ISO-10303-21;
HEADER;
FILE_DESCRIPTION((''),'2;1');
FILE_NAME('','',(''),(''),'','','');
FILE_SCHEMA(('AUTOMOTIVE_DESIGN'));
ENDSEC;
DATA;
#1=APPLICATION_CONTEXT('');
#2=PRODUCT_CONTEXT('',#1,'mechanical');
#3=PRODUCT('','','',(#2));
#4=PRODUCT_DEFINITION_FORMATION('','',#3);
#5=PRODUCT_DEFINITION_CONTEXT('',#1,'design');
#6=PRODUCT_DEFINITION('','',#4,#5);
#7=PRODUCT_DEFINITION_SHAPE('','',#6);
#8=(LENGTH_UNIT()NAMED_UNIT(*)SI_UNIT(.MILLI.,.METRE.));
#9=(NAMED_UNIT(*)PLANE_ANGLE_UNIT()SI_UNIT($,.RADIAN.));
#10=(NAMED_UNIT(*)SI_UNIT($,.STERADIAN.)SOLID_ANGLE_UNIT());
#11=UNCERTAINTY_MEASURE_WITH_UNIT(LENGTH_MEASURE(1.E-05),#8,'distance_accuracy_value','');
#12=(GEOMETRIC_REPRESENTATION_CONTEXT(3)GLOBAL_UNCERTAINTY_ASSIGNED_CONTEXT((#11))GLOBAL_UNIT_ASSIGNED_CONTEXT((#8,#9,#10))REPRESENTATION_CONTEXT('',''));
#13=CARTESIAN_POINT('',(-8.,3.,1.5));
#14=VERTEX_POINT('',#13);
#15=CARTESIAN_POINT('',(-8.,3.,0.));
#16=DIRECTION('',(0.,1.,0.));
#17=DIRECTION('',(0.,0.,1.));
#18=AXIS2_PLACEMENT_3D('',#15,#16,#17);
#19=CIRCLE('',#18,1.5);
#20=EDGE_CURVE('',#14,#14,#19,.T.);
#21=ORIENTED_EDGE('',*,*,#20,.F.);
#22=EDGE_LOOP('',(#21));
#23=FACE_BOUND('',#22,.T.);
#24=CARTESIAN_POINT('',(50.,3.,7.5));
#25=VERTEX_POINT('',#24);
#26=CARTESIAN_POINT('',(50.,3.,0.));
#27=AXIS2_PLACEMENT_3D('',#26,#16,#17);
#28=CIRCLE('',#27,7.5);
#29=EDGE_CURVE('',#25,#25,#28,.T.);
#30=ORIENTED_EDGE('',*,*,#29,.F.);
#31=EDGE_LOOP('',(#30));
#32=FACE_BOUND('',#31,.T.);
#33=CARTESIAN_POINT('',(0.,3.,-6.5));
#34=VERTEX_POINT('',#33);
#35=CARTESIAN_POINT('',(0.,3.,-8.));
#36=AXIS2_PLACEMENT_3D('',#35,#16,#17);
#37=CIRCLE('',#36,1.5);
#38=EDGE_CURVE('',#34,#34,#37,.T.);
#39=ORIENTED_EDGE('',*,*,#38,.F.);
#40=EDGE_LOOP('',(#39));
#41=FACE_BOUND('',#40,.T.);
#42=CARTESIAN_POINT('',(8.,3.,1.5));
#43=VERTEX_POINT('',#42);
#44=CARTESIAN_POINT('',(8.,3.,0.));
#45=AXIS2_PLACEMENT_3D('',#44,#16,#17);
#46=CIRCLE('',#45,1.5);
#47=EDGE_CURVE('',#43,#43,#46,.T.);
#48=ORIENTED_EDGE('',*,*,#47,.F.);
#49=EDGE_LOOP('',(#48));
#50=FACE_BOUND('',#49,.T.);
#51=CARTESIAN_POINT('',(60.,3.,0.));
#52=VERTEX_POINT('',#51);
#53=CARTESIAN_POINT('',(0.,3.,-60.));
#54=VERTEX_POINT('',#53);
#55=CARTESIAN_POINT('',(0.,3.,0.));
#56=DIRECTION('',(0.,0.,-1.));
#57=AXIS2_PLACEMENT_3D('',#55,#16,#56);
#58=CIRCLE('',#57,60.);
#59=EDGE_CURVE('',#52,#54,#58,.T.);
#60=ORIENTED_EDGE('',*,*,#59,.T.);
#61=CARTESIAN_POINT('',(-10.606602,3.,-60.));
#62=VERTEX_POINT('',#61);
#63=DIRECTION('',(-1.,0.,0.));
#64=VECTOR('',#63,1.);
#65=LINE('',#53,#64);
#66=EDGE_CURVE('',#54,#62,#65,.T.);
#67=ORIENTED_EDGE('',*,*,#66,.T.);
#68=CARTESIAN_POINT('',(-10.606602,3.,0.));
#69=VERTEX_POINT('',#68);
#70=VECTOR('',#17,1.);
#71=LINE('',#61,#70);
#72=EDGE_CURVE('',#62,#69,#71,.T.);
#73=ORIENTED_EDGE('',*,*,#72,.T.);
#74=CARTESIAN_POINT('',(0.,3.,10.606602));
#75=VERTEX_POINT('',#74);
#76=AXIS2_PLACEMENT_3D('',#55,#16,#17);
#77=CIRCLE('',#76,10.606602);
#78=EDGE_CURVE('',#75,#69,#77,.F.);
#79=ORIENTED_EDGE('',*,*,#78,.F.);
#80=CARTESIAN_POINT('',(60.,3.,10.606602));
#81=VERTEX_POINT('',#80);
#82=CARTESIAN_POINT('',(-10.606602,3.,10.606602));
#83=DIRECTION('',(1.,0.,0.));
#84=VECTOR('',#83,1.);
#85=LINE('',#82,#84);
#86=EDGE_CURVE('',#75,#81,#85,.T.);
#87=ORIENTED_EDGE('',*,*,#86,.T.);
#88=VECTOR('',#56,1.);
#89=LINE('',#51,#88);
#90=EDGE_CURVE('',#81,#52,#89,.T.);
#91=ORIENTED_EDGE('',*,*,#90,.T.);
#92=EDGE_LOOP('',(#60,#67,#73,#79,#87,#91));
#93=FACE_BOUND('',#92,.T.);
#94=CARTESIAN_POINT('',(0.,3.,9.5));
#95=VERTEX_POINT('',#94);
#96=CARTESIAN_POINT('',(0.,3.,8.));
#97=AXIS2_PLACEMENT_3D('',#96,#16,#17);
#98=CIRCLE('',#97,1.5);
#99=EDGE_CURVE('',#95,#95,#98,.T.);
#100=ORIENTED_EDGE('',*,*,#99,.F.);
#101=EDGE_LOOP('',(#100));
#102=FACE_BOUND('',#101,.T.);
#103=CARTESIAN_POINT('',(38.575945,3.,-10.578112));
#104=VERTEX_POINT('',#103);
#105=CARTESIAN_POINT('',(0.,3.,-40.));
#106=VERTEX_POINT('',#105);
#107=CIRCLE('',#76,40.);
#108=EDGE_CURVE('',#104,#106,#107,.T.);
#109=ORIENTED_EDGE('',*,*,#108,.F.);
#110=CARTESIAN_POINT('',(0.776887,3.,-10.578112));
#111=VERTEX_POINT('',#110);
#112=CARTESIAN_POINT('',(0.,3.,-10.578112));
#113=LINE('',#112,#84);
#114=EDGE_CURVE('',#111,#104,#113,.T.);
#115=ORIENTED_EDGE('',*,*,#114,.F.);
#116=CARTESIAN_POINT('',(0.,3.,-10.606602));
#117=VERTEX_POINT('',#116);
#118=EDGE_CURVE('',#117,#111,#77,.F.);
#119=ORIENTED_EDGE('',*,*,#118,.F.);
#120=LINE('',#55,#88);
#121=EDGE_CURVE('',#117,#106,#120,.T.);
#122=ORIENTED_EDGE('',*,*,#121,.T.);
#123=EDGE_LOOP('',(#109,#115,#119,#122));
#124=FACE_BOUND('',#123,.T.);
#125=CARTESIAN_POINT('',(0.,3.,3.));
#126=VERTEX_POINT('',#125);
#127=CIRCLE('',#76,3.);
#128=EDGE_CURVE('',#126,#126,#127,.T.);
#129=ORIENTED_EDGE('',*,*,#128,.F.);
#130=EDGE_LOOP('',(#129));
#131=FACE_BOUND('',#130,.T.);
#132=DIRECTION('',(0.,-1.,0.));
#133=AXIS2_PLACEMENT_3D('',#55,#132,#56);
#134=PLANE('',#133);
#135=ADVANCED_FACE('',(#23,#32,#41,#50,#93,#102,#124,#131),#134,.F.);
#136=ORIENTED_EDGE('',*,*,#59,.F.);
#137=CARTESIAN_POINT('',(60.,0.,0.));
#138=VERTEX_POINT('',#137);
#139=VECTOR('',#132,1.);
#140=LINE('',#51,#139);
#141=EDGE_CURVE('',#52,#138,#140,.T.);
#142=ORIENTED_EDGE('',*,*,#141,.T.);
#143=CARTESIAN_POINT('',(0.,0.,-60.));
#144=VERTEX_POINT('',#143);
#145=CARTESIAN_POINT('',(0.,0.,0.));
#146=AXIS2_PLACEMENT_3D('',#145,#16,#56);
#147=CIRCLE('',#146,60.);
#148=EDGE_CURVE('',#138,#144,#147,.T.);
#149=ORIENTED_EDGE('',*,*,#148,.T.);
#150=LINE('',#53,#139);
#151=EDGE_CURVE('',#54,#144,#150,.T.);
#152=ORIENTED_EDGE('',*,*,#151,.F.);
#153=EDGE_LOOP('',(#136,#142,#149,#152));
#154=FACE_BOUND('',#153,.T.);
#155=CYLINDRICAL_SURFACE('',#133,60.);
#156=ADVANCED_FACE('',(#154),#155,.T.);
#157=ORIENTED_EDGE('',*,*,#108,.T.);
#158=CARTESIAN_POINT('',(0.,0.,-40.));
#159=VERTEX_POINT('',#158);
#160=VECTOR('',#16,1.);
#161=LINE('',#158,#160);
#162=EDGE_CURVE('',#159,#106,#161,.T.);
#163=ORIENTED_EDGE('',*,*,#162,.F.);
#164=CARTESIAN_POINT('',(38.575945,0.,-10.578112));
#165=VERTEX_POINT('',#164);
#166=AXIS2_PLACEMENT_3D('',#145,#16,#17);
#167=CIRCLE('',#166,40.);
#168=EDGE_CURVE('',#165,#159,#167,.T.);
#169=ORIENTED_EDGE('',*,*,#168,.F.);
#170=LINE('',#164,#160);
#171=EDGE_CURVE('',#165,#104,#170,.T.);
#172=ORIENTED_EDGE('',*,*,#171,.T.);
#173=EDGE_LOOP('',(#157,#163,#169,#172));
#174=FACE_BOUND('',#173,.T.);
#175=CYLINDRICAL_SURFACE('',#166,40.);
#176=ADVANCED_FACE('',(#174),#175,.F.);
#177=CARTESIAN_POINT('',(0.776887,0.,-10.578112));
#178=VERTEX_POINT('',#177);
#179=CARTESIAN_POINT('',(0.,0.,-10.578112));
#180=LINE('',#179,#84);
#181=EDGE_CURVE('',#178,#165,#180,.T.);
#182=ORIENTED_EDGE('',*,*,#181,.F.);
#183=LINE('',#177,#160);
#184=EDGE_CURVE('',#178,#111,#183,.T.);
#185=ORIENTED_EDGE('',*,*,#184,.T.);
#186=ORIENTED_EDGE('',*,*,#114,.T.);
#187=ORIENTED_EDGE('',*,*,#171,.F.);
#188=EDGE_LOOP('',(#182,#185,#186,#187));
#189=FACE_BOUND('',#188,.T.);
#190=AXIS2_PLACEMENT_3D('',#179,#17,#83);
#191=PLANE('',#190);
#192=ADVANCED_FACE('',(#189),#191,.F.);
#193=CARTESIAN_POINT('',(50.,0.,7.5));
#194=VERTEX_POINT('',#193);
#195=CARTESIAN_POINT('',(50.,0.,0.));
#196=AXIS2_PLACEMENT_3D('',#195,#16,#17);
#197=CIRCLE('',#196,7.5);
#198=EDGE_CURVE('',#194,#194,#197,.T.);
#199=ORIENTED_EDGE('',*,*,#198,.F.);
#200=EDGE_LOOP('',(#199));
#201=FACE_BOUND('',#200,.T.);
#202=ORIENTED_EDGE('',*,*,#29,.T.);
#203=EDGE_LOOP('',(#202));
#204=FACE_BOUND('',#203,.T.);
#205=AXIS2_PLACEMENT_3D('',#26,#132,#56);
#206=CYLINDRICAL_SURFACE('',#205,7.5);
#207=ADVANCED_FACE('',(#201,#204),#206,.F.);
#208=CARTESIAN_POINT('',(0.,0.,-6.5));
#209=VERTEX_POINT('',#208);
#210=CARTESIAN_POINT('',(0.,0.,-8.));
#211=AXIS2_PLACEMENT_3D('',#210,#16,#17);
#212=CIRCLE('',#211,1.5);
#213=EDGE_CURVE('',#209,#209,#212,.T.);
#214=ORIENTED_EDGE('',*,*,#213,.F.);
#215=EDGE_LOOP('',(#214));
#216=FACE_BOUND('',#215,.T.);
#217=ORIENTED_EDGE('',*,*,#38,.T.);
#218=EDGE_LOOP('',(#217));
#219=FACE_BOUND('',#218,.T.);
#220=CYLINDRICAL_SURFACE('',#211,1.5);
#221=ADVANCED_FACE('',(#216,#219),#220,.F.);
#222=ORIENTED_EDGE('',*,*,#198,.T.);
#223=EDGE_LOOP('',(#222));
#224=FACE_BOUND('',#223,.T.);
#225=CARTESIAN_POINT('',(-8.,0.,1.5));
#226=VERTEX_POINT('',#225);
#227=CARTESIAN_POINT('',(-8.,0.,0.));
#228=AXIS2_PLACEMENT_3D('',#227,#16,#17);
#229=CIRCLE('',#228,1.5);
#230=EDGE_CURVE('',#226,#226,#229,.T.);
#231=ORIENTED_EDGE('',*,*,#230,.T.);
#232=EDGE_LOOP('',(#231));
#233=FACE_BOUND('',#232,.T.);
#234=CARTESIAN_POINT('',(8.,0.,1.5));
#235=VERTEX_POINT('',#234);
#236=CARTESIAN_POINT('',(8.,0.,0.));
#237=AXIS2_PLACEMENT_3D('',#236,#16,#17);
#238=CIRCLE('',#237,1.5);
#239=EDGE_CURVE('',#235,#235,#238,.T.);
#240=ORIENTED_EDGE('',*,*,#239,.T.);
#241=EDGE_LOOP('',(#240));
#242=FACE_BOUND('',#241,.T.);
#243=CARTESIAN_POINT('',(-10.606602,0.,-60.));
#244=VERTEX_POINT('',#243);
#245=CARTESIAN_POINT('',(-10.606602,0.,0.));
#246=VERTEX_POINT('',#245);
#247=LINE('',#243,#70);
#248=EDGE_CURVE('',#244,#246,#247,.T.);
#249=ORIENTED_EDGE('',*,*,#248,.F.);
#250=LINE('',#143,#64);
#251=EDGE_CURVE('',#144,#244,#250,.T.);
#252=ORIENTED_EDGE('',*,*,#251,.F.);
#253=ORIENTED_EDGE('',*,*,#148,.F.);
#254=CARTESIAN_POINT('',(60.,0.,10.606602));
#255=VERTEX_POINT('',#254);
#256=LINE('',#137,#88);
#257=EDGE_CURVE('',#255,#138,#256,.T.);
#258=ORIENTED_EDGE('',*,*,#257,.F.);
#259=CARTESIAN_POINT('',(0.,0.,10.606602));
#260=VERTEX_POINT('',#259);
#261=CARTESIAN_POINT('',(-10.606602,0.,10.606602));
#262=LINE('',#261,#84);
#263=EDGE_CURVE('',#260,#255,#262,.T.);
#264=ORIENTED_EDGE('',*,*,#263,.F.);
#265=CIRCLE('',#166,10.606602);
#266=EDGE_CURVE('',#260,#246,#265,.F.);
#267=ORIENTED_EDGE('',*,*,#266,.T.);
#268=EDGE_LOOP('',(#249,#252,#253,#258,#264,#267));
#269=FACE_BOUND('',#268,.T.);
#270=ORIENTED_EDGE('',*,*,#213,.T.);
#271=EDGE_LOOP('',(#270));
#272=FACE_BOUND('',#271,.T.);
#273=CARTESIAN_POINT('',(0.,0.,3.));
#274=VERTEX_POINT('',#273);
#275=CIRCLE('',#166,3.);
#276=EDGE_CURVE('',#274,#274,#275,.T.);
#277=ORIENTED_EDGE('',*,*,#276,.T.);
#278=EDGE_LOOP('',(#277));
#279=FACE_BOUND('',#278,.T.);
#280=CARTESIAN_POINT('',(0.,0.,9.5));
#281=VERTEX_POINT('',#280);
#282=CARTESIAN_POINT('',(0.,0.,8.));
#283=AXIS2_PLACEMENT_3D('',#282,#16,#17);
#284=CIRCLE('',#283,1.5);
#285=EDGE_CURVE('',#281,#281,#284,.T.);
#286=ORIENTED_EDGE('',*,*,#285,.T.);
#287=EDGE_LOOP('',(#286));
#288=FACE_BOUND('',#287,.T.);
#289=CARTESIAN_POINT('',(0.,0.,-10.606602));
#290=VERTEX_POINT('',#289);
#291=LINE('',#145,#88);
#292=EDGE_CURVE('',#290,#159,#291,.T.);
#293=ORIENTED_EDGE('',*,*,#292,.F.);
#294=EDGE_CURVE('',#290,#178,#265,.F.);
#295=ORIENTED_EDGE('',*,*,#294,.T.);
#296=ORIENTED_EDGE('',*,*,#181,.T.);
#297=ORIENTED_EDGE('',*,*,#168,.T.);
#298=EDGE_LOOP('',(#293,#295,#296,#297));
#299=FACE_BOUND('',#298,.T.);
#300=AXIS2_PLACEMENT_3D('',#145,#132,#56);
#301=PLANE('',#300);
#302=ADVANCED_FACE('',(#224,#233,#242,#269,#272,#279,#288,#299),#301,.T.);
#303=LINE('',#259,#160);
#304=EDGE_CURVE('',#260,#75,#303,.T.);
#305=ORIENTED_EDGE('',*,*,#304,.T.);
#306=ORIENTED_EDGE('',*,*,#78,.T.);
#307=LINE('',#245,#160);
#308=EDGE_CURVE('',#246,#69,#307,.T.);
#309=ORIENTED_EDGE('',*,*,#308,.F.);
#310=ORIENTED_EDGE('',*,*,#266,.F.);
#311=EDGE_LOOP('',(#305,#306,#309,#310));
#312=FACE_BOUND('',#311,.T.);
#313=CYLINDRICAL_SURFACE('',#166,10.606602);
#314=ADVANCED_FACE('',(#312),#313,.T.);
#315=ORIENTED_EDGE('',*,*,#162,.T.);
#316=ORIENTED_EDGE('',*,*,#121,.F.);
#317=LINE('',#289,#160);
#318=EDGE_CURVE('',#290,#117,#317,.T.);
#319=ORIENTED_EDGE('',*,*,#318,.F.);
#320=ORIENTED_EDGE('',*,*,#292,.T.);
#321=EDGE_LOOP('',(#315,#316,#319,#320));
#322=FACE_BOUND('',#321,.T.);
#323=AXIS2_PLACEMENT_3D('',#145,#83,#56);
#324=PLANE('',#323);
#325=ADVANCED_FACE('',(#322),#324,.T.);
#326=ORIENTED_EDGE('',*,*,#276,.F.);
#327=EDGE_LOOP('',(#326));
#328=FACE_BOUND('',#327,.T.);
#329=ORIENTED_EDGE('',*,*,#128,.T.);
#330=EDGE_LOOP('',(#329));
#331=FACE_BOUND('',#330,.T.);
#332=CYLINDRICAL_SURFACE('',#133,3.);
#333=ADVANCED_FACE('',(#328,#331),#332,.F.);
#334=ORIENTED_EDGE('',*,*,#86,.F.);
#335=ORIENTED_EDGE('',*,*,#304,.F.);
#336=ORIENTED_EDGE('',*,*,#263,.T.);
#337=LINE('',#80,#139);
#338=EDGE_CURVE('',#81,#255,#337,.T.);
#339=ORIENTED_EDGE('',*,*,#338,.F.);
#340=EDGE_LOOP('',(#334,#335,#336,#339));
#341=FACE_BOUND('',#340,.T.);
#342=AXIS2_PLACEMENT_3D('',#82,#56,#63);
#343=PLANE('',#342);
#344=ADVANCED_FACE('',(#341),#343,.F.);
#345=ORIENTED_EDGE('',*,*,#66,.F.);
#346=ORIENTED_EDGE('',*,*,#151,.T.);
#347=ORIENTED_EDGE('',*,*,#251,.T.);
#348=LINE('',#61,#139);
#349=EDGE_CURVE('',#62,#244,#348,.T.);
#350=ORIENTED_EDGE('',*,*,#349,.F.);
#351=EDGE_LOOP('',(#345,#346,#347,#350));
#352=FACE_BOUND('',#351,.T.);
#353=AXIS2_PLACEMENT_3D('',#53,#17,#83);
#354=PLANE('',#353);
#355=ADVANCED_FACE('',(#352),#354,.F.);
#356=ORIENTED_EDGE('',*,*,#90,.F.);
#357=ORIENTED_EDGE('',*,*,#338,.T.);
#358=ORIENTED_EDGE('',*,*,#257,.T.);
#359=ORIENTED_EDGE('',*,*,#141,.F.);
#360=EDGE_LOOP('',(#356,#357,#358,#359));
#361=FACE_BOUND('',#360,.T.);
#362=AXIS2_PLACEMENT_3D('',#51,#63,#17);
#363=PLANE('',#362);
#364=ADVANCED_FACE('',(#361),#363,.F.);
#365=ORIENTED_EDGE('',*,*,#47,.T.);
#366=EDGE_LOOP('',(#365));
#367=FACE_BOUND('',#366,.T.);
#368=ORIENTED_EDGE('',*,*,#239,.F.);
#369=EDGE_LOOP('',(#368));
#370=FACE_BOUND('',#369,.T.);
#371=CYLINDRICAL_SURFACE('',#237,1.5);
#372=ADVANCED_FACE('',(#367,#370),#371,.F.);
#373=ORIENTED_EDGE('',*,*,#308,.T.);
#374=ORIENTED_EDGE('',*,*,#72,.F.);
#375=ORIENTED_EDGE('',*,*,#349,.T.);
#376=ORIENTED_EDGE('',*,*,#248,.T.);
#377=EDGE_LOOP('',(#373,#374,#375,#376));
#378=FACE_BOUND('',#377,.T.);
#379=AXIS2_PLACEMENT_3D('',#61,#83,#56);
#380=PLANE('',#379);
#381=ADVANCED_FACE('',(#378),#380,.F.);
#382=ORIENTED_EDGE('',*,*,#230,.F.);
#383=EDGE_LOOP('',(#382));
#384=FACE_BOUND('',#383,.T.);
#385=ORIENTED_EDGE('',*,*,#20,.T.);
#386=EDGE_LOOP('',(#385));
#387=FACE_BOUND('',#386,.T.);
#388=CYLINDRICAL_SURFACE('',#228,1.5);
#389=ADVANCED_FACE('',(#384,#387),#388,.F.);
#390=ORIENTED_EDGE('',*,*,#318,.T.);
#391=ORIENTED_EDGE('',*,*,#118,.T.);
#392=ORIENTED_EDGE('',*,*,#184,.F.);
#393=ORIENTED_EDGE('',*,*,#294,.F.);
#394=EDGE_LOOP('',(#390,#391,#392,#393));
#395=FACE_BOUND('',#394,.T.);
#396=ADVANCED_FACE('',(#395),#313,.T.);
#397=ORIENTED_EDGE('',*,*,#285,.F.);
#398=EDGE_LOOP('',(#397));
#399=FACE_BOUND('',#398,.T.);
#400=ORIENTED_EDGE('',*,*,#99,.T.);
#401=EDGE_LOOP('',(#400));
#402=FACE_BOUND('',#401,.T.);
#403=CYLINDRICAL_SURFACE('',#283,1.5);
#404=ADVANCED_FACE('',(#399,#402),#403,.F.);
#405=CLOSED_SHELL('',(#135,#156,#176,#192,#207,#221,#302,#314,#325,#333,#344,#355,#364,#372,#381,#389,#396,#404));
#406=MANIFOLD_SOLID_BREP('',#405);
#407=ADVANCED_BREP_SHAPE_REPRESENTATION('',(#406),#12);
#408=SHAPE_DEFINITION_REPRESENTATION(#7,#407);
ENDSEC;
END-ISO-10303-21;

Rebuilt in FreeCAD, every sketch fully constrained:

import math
import FreeCAD as App
import Part
import Sketcher

V = App.Vector

doc = App.newDocument("Part")
body = doc.addObject("PartDesign::Body", "Body")

# Sketch on XZ plane
sketch1 = body.newObject("Sketcher::SketchObject", "Sketch")
sketch1.AttachmentSupport = (doc.getObject("XZ_Plane"), [""])
sketch1.MapMode = "FlatFace"
sketch1.addGeometry(Part.LineSegment(V(-10.6, -60, 0), V(-10.6, 10.6, 0)), False)
sketch1.addGeometry(Part.LineSegment(V(-10.6, 10.6, 0), V(60, 10.6, 0)), False)
sketch1.addGeometry(Part.LineSegment(V(60, 10.6, 0), V(60, 0, 0)), False)
sketch1.addGeometry(Part.ArcOfCircle(Part.Circle(V(0, 0, 0), V(0, 0, 1), 60), math.radians(-90), math.radians(0)), False)
sketch1.addGeometry(Part.LineSegment(V(0, -60, 0), V(-10.6, -60, 0)), False)
sketch1.addGeometry(Part.Circle(V(0, 0, 0), V(0, 0, 1), 3), False)
sketch1.addGeometry(Part.Circle(V(50, 0, 0), V(0, 0, 1), 7.5), False)
sketch1.addConstraint(Sketcher.Constraint("Coincident", 0, 2, 1, 1))
sketch1.addConstraint(Sketcher.Constraint("Coincident", 1, 2, 2, 1))
sketch1.addConstraint(Sketcher.Constraint("Tangent", 2, 2, 3, 2))
sketch1.addConstraint(Sketcher.Constraint("Tangent", 3, 1, 4, 1))
sketch1.addConstraint(Sketcher.Constraint("Coincident", 4, 2, 0, 1))
sketch1.addConstraint(Sketcher.Constraint("Vertical", 0))
sketch1.addConstraint(Sketcher.Constraint("Horizontal", 1))
sketch1.addConstraint(Sketcher.Constraint("Vertical", 2))
sketch1.addConstraint(Sketcher.Constraint("Horizontal", 4))
sketch1.addConstraint(Sketcher.Constraint("Coincident", 3, 3, -1, 1))
sketch1.addConstraint(Sketcher.Constraint("Coincident", 5, 3, -1, 1))
sketch1.addConstraint(Sketcher.Constraint("PointOnObject", 6, 3, -1))
sketch1.addConstraint(Sketcher.Constraint("Equal", 1, 0))
sketch1.addConstraint(Sketcher.Constraint("Diameter", 5, 6.0))
sketch1.addConstraint(Sketcher.Constraint("Diameter", 6, 15.0))
sketch1.addConstraint(Sketcher.Constraint("Radius", 3, 60.0))
sketch1.addConstraint(Sketcher.Constraint("DistanceX", -1, 1, 6, 3, 50.0))
sketch1.addConstraint(Sketcher.Constraint("DistanceX", 1, 1, 1, 2, 70.606602))
pad1 = body.newObject("PartDesign::Pad", "Pad")
pad1.Profile = sketch1
pad1.Length = 3
pad1.Reversed = True

# Sketch on XZ plane
sketch2 = body.newObject("Sketcher::SketchObject", "Sketch001")
sketch2.AttachmentSupport = (doc.getObject("XZ_Plane"), [""])
sketch2.MapMode = "FlatFace"
sketch2.AttachmentOffset = App.Placement(V(0, 0, -3), App.Rotation())
sketch2.addGeometry(Part.ArcOfCircle(Part.Circle(V(0, 0, 0), V(0, 0, 1), 10.6), math.radians(-90), math.radians(-85.8)), False)
sketch2.addGeometry(Part.LineSegment(V(0.8, -10.6, 0), V(38.6, -10.6, 0)), False)
sketch2.addGeometry(Part.ArcOfCircle(Part.Circle(V(0, 0, 0), V(0, 0, 1), 40), math.radians(-90), math.radians(-15)), False)
sketch2.addGeometry(Part.LineSegment(V(0, -40, 0), V(0, -10.6, 0)), False)
sketch2.addGeometry(Part.ArcOfCircle(Part.Circle(V(0, 0, 0), V(0, 0, 1), 10.6), math.radians(90), math.radians(180)), False)
sketch2.addGeometry(Part.LineSegment(V(-10.6, 0, 0), V(-10.6, 10.6, 0)), False)
sketch2.addGeometry(Part.LineSegment(V(-10.6, 10.6, 0), V(0, 10.6, 0)), False)
sketch2.addConstraint(Sketcher.Constraint("Coincident", 0, 2, 1, 1))
sketch2.addConstraint(Sketcher.Constraint("Coincident", 1, 2, 2, 2))
sketch2.addConstraint(Sketcher.Constraint("Coincident", 2, 1, 3, 1))
sketch2.addConstraint(Sketcher.Constraint("Coincident", 3, 2, 0, 1))
sketch2.addConstraint(Sketcher.Constraint("Tangent", 4, 2, 5, 1))
sketch2.addConstraint(Sketcher.Constraint("Coincident", 5, 2, 6, 1))
sketch2.addConstraint(Sketcher.Constraint("Tangent", 6, 2, 4, 1))
sketch2.addConstraint(Sketcher.Constraint("Horizontal", 1))
sketch2.addConstraint(Sketcher.Constraint("Vertical", 3))
sketch2.addConstraint(Sketcher.Constraint("Vertical", 5))
sketch2.addConstraint(Sketcher.Constraint("Horizontal", 6))
sketch2.addConstraint(Sketcher.Constraint("Coincident", 0, 3, -1, 1))
sketch2.addConstraint(Sketcher.Constraint("Coincident", 2, 3, -1, 1))
sketch2.addConstraint(Sketcher.Constraint("Coincident", 4, 3, -1, 1))
sketch2.addConstraint(Sketcher.Constraint("Equal", 0, 4))
sketch2.addConstraint(Sketcher.Constraint("PointOnObject", 2, 1, -2))
sketch2.addConstraint(Sketcher.Constraint("Radius", 2, 40.0))
sketch2.addConstraint(Sketcher.Constraint("Radius", 4, 10.606602))
sketch2.addConstraint(Sketcher.Constraint("DistanceX", 1, 1, 1, 2, 37.799059))
pocket1 = body.newObject("PartDesign::Pocket", "Pocket")
pocket1.Profile = sketch2
pocket1.Type = "ThroughAll"
pocket1.Reversed = True

# Sketch on XZ plane
sketch3 = body.newObject("Sketcher::SketchObject", "Sketch002")
sketch3.AttachmentSupport = (doc.getObject("XZ_Plane"), [""])
sketch3.MapMode = "FlatFace"
sketch3.AttachmentOffset = App.Placement(V(0, 0, -3), App.Rotation())
sketch3.addGeometry(Part.Circle(V(8, 0, 0), V(0, 0, 1), 1.5), False)
sketch3.addGeometry(Part.Circle(V(0, 8, 0), V(0, 0, 1), 1.5), False)
sketch3.addGeometry(Part.Circle(V(-8, 0, 0), V(0, 0, 1), 1.5), False)
sketch3.addGeometry(Part.Circle(V(0, -8, 0), V(0, 0, 1), 1.5), False)
sketch3.addConstraint(Sketcher.Constraint("Equal", 0, 1))
sketch3.addConstraint(Sketcher.Constraint("Equal", 1, 2))
sketch3.addConstraint(Sketcher.Constraint("Equal", 2, 3))
sketch3.addConstraint(Sketcher.Constraint("Symmetric", 0, 3, 2, 3, -1, 1))
sketch3.addConstraint(Sketcher.Constraint("Symmetric", 1, 3, 3, 3, -1, 1))
sketch3.addConstraint(Sketcher.Constraint("PointOnObject", 0, 3, -1))
sketch3.addConstraint(Sketcher.Constraint("PointOnObject", 1, 3, -2))
sketch3.addConstraint(Sketcher.Constraint("Diameter", 0, 3.0))
sketch3.addConstraint(Sketcher.Constraint("DistanceX", -1, 1, 0, 3, 8.0))
sketch3.addConstraint(Sketcher.Constraint("DistanceY", -1, 1, 1, 3, 8.0))
pocket2 = body.newObject("PartDesign::Pocket", "Pocket001")
pocket2.Profile = sketch3
pocket2.Type = "ThroughAll"
pocket2.Reversed = True

doc.recompute()
